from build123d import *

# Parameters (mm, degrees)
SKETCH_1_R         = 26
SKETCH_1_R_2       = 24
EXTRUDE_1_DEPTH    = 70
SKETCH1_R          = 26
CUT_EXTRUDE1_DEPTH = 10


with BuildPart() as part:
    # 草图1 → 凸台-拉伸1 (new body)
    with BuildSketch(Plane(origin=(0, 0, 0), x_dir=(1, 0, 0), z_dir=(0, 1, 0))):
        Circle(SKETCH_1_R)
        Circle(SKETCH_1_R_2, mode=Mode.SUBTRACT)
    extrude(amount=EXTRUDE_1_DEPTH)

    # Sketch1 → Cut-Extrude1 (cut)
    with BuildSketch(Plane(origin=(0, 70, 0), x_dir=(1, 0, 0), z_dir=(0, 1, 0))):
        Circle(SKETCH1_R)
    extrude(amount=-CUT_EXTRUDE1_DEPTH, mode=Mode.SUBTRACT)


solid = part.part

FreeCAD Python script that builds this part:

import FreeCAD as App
import Part
import Sketcher
Q = App.Units.Quantity

doc = App.newDocument("Part")
body = doc.addObject("PartDesign::Body", "Body")

# Sketch on XZ plane
sketch1 = doc.addObject("Sketcher::SketchObject", "Sketch")
body.addObject(sketch1)
sketch1.AttachmentSupport = (doc.XZ_Plane, [""])
sketch1.MapMode = "FlatFace"
sketch1.addGeometry([
    Part.Circle(App.Vector(0, 0, 0), App.Vector(0, 0, 1), 26),
    Part.Circle(App.Vector(0, 0, 0), App.Vector(0, 0, 1), 24),
], False)
sketch1.addConstraint([
    Sketcher.Constraint("Coincident", 0, 3, -1, 1),
    Sketcher.Constraint("Coincident", 1, 3, -1, 1),
    Sketcher.Constraint("Diameter", 0, Q("52 mm")),
    Sketcher.Constraint("Diameter", 1, Q("48 mm")),
])
pad1 = doc.addObject("PartDesign::Pad", "Pad")
body.addObject(pad1)
pad1.Profile = sketch1
pad1.Length = 70
pad1.Reversed = True

# Sketch on XZ plane
sketch2 = doc.addObject("Sketcher::SketchObject", "Sketch001")
body.addObject(sketch2)
sketch2.AttachmentSupport = (doc.XZ_Plane, [""])
sketch2.MapMode = "FlatFace"
sketch2.AttachmentOffset = App.Placement(App.Vector(0, 0, -70), App.Rotation())
sketch2.addGeometry(Part.Circle(App.Vector(0, 0, 0), App.Vector(0, 0, 1), 26), False)
sketch2.addConstraint([
    Sketcher.Constraint("Coincident", 0, 3, -1, 1),
    Sketcher.Constraint("Diameter", 0, Q("52 mm")),
])
pocket1 = doc.addObject("PartDesign::Pocket", "Pocket")
body.addObject(pocket1)
pocket1.Profile = sketch2
pocket1.Length = 10
pocket1.Reversed = True

doc.recompute()
